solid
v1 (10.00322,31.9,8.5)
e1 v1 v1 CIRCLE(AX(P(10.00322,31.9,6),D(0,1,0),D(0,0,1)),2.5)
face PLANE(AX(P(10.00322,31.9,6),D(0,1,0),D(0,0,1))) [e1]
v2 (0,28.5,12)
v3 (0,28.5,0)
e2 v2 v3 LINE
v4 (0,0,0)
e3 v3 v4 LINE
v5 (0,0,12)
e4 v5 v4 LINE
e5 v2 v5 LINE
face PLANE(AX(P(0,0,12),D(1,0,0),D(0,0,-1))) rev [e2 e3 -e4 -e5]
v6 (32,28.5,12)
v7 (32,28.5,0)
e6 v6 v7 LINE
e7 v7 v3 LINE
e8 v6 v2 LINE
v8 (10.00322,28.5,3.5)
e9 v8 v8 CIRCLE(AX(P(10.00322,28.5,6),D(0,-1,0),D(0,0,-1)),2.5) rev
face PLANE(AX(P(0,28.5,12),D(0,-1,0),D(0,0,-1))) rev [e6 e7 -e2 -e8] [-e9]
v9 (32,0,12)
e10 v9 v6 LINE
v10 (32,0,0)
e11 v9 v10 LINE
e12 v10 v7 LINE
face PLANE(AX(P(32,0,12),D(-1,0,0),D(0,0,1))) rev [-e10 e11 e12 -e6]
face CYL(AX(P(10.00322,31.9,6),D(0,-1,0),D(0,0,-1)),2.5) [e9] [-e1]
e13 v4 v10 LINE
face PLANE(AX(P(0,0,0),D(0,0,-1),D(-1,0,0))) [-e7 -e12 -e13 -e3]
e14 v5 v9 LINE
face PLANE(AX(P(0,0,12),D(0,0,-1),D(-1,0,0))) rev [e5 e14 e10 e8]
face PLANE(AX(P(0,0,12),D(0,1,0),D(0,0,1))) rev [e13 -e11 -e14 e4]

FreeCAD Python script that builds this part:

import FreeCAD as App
import Part
import Sketcher
Q = App.Units.Quantity

doc = App.newDocument("Part")
body = doc.addObject("PartDesign::Body", "Body")

sketch1 = body.newObject("Sketcher::SketchObject", "Sketch")
sketch1.AttachmentSupport = (doc.getObject("XY_Plane"), [""])
sketch1.MapMode = "FlatFace"
sketch1.addGeometry([
    Part.LineSegment(App.Vector(0, 28.5, 0), App.Vector(0, 0, 0)),
    Part.LineSegment(App.Vector(0, 0, 0), App.Vector(32, 0, 0)),
    Part.LineSegment(App.Vector(32, 0, 0), App.Vector(32, 28.5, 0)),
    Part.LineSegment(App.Vector(32, 28.5, 0), App.Vector(0, 28.5, 0)),
], False)
sketch1.addConstraint([
    Sketcher.Constraint("Coincident", 0, 2, 1, 1),
    Sketcher.Constraint("Coincident", 1, 2, 2, 1),
    Sketcher.Constraint("Coincident", 2, 2, 3, 1),
    Sketcher.Constraint("Coincident", 3, 2, 0, 1),
    Sketcher.Constraint("Vertical", 0),
    Sketcher.Constraint("Horizontal", 1),
    Sketcher.Constraint("Vertical", 2),
    Sketcher.Constraint("Horizontal", 3),
    Sketcher.Constraint("Coincident", 0, 2, -1, 1),
    Sketcher.Constraint("DistanceX", 1, 1, 1, 2, Q("32 mm")),
    Sketcher.Constraint("DistanceY", 0, 2, 0, 1, Q("28.5 mm")),
])
pad1 = body.newObject("PartDesign::Pad", "Pad")
pad1.Profile = sketch1
pad1.Length = 12

sketch2 = body.newObject("Sketcher::SketchObject", "Sketch001")
sketch2.AttachmentSupport = (doc.getObject("XZ_Plane"), [""])
sketch2.MapMode = "FlatFace"
sketch2.AttachmentOffset = App.Placement(App.Vector(0, 0, -28.5), App.Rotation())
sketch2.addGeometry(Part.Circle(App.Vector(10.00322, 6, 0), App.Vector(0, 0, 1), 2.5), False)
sketch2.addConstraint([
    Sketcher.Constraint("Diameter", 0, Q("5 mm")),
    Sketcher.Constraint("DistanceY", -1, 1, 0, 3, Q("6 mm")),
    Sketcher.Constraint("DistanceX", -1, 1, 0, 3, Q("10.00322 mm")),
])
pad2 = body.newObject("PartDesign::Pad", "Pad001")
pad2.Profile = sketch2
pad2.Length = 3.4
pad2.Reversed = True

doc.recompute()
